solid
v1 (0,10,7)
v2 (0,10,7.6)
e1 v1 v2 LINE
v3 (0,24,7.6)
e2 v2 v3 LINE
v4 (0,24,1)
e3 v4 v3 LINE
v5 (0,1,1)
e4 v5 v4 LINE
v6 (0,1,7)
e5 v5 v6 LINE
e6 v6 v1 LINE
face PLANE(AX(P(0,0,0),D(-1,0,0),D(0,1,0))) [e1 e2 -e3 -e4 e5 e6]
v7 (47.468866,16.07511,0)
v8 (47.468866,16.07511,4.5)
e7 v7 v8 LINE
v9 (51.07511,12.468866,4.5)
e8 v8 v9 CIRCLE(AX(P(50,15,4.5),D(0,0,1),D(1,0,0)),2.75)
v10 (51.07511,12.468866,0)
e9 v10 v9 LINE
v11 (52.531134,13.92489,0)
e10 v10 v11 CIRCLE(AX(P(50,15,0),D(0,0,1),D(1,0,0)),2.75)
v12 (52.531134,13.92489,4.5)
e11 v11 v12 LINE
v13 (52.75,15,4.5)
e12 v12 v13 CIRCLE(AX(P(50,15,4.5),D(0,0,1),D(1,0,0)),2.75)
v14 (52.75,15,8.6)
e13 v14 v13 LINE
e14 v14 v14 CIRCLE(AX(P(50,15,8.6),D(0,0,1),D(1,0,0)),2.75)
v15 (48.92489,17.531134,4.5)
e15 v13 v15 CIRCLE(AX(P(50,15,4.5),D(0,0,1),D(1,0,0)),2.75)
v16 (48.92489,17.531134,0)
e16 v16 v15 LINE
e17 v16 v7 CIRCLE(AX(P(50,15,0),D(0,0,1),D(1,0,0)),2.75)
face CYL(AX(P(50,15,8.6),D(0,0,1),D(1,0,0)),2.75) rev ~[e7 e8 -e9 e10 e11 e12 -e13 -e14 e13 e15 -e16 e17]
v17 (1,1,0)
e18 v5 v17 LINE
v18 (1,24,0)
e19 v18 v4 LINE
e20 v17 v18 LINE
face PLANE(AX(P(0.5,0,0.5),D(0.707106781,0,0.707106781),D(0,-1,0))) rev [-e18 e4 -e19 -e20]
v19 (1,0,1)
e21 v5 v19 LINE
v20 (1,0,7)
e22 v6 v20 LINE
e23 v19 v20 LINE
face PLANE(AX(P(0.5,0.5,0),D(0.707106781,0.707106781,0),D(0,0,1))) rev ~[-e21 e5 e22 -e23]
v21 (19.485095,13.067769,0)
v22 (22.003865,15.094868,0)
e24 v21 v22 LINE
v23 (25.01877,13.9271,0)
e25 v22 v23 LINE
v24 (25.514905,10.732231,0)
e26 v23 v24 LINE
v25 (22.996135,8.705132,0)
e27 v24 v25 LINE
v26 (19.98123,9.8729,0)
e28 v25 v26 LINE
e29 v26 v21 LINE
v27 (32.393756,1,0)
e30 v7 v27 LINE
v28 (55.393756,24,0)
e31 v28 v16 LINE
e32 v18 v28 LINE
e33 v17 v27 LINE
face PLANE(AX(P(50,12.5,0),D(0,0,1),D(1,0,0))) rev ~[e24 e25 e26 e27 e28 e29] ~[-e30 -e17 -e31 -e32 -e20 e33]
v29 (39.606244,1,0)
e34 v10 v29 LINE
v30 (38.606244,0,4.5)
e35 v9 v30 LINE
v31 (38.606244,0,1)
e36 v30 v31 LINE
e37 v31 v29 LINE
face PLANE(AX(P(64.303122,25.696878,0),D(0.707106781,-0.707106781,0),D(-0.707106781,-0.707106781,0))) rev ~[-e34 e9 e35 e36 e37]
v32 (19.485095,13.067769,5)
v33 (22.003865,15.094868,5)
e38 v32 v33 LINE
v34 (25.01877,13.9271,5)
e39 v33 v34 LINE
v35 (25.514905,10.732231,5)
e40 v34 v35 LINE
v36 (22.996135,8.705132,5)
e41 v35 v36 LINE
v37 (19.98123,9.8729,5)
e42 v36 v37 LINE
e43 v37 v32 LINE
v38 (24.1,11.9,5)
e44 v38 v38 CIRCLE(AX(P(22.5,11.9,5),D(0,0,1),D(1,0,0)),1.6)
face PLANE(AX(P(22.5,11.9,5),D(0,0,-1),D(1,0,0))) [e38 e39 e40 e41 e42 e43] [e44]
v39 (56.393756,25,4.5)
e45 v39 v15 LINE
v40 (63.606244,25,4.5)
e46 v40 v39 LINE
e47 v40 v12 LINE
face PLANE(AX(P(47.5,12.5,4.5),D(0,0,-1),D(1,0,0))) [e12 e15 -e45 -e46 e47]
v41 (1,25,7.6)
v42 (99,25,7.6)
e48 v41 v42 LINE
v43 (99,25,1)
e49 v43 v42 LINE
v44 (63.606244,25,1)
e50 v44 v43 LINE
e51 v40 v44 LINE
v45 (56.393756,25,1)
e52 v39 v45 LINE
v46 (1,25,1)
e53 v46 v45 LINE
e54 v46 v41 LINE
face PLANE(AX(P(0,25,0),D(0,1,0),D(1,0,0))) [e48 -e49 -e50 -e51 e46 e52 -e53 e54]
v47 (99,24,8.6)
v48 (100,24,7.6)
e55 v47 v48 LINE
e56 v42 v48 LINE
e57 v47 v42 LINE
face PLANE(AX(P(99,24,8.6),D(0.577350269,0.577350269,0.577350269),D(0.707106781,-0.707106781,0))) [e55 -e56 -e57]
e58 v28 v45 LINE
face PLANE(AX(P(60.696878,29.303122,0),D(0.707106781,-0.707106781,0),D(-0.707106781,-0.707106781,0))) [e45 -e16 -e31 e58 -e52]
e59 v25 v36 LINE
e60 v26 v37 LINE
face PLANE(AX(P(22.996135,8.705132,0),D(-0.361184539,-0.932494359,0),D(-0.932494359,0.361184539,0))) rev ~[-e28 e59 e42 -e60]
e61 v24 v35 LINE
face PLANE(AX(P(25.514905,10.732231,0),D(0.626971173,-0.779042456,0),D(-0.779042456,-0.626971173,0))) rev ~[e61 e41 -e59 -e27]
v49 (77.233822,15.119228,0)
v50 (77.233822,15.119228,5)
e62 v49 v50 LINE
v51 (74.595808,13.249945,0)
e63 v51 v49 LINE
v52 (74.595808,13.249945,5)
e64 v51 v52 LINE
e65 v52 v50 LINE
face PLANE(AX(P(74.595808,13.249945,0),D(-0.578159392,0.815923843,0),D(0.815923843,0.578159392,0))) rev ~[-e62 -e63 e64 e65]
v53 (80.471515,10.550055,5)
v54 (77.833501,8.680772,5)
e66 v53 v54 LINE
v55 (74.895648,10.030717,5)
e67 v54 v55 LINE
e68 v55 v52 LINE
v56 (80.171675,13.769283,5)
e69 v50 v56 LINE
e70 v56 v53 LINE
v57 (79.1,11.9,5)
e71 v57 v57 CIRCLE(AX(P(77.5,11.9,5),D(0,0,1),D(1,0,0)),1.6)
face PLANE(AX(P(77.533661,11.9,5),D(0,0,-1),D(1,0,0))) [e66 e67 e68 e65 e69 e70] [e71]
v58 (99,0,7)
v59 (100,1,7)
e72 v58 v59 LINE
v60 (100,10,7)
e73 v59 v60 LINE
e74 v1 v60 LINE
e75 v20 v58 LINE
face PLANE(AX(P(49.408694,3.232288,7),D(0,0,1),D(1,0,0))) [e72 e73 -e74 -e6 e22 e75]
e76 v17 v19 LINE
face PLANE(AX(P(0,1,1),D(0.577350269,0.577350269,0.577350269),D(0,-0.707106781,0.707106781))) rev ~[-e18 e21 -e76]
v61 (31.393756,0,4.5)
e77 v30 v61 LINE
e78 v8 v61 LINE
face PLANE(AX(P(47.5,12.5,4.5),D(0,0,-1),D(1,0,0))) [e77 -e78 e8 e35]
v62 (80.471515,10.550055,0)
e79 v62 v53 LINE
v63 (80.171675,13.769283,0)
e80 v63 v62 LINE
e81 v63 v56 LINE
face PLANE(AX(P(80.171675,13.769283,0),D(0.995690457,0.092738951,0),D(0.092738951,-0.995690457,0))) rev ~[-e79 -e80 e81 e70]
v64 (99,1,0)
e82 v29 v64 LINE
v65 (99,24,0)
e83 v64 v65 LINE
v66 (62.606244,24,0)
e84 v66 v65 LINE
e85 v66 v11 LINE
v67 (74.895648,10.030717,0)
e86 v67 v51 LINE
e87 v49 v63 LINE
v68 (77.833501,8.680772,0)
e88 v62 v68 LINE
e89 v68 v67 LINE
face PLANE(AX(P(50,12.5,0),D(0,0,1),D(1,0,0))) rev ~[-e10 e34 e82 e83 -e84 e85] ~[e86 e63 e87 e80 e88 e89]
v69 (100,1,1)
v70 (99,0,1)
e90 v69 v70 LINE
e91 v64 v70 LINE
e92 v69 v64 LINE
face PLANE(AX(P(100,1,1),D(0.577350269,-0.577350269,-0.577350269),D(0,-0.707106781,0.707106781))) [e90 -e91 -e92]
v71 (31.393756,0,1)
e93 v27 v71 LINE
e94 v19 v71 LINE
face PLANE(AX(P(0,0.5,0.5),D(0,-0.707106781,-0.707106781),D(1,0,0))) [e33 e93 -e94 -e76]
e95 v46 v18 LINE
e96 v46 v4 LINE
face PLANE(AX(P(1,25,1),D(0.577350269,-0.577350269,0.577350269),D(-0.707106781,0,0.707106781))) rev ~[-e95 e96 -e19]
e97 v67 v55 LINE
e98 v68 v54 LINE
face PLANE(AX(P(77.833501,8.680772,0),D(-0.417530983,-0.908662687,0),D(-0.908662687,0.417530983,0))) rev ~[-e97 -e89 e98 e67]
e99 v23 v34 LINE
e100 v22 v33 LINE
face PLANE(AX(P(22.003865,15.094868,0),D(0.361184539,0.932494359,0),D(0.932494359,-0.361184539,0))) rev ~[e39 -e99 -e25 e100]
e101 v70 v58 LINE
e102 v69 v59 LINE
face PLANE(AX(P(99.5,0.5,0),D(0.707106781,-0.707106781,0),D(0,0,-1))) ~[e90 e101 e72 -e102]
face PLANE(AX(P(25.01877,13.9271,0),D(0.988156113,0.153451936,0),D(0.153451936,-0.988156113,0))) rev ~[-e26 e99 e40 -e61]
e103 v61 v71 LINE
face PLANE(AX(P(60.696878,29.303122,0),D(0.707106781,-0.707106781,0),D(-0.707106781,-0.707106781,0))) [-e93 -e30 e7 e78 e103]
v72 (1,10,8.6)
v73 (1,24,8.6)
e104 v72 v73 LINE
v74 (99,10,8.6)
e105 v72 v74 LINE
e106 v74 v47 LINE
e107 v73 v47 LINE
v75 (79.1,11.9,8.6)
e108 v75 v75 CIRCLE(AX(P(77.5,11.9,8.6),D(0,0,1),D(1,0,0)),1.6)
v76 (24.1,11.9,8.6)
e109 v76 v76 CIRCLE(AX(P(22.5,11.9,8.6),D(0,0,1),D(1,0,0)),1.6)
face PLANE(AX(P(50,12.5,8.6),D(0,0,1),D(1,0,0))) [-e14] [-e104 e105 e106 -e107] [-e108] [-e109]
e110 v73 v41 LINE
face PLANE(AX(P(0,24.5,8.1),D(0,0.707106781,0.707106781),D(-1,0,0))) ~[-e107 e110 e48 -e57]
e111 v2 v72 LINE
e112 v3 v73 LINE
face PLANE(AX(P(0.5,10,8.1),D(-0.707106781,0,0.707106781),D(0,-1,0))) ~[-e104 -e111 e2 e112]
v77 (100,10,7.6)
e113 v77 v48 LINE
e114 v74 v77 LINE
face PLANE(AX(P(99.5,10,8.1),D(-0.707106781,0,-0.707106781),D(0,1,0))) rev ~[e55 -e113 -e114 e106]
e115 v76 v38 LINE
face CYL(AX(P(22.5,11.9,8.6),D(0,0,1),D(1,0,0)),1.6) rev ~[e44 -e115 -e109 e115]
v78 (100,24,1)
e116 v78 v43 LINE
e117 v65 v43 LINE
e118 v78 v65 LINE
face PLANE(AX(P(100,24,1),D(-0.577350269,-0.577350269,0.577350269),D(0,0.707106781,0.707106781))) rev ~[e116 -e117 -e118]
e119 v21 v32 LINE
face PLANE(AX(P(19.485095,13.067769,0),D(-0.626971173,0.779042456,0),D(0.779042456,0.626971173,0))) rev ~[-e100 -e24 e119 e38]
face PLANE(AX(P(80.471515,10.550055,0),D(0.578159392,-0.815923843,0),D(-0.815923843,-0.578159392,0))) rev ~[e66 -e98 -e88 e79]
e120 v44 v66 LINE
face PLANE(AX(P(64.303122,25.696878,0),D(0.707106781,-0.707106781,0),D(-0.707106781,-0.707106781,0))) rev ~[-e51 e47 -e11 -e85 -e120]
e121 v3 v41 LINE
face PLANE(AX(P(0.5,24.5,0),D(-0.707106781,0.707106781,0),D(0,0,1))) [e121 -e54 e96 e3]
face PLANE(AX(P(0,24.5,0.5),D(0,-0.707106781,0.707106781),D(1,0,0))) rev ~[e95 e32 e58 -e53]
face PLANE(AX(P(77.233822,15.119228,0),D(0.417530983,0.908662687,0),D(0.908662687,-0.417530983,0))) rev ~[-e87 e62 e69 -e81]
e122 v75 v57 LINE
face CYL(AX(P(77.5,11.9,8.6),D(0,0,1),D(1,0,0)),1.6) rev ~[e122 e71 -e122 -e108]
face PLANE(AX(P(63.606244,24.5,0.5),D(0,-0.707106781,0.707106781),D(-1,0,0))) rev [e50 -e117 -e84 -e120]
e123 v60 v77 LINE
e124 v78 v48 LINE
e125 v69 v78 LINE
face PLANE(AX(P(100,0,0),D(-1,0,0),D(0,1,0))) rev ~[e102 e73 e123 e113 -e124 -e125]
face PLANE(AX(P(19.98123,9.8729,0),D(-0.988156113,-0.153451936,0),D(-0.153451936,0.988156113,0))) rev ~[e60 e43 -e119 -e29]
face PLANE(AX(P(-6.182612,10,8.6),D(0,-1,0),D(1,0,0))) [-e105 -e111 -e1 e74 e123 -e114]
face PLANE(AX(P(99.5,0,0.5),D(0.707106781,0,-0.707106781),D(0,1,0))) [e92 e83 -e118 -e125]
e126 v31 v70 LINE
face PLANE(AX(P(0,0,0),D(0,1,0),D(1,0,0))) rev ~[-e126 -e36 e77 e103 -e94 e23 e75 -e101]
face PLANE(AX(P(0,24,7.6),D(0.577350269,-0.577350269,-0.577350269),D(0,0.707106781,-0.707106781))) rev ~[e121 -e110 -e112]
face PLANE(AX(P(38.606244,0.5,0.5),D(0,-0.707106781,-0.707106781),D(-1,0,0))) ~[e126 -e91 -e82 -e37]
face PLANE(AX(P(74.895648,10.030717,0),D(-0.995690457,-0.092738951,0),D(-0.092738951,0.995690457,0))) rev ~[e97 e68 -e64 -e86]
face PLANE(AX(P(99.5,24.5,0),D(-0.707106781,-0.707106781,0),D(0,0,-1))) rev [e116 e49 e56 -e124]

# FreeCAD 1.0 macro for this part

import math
import FreeCAD as App
import Part
import Sketcher
Q = App.Units.Quantity


def edges_at(feature, points):
    """Names of the edges that pass closest to the given points."""
    edges = feature.Shape.Edges
    near = lambda p: min(range(len(edges)), key=lambda i: edges[i].distToShape(Part.Vertex(*p))[0])
    return sorted({f"Edge{near(p) + 1}" for p in points})


def add_polygon(sketch, points):
    """Adds a closed chain of lines whose ends are joined by coincident constraints."""
    first, n = sketch.GeometryCount, len(points)
    for a, b in zip(points, points[1:] + points[:1]):
        sketch.addGeometry(Part.LineSegment(App.Vector(*a, 0), App.Vector(*b, 0)), False)
    for i in range(n):
        sketch.addConstraint(Sketcher.Constraint("Coincident", first + i, 2, first + (i + 1) % n, 1))

doc = App.newDocument("Part")
params = doc.addObject("Spreadsheet::Sheet", "Params")
for row, (alias, value) in enumerate([
    ("sketch1_width", "100 mm"),
    ("sketch1_height", "25 mm"),
    ("pad1_length", "8.6 mm"),
    ("pocket1_length", "1.6 mm"),
    ("sketch3_diameter", "5.5 mm"),
    ("sketch4_radius", "2.55 mm"),
    ("pocket3_length", "4.5 mm"),
    ("sketch5_diameter", "3.2 mm"),
    ("pocket5_length", "5 mm"),
    ("chamfer_size", "1 mm"),
], start=1):
    params.set(f"A{row}", alias)
    params.set(f"B{row}", "=" + value)
    params.setAlias(f"B{row}", alias)

body = doc.addObject("PartDesign::Body", "Body")

# Sketch on XY plane
sketch1 = doc.addObject("Sketcher::SketchObject", "Sketch")
body.addObject(sketch1)
sketch1.AttachmentSupport = (doc.XY_Plane, [""])
sketch1.MapMode = "FlatFace"
add_polygon(sketch1, [(0, 25), (0, 0), (100, 0), (100, 25)])  # lines 0-3
sketch1.addConstraint([
    Sketcher.Constraint("Vertical", 0),
    Sketcher.Constraint("Horizontal", 1),
    Sketcher.Constraint("Vertical", 2),
    Sketcher.Constraint("Horizontal", 3),
    Sketcher.Constraint("Coincident", 0, 2, -1, 1),
    Sketcher.Constraint("DistanceX", 1, 1, 1, 2, Q("100 mm")),
    Sketcher.Constraint("DistanceY", 0, 2, 0, 1, Q("25 mm")),
])
sketch1.setExpression("Constraints[9]", "Params.sketch1_width")
sketch1.setExpression("Constraints[10]", "Params.sketch1_height")
pad1 = doc.addObject("PartDesign::Pad", "Pad")
body.addObject(pad1)
pad1.Profile = sketch1
pad1.setExpression("Length", "Params.pad1_length")

# Sketch on XY plane
sketch2 = doc.addObject("Sketcher::SketchObject", "Sketch001")
body.addObject(sketch2)
sketch2.AttachmentSupport = (doc.XY_Plane, [""])
sketch2.MapMode = "FlatFace"
sketch2.AttachmentOffset = App.Placement(App.Vector(0, 0, 8.6), App.Rotation())
add_polygon(sketch2, [(-6, 10), (-6, -4), (105, -4), (105, 10)])  # lines 0-3
sketch2.addConstraint([
    Sketcher.Constraint("Vertical", 0),
    Sketcher.Constraint("Horizontal", 1),
    Sketcher.Constraint("Vertical", 2),
    Sketcher.Constraint("Horizontal", 3),
    Sketcher.Constraint("DistanceX", -1, 1, 1, 2, Q("105 mm")),
    Sketcher.Constraint("DistanceY", -1, 1, 2, 2, Q("10 mm")),
    Sketcher.Constraint("DistanceX", 1, 1, 1, 2, Q("111.182612 mm")),
    Sketcher.Constraint("DistanceY", 0, 2, 0, 1, Q("13.535424 mm")),
])
pocket1 = doc.addObject("PartDesign::Pocket", "Pocket")
body.addObject(pocket1)
pocket1.Profile = sketch2
pocket1.setExpression("Length", "Params.pocket1_length")

# Sketch on XY plane
sketch3 = doc.addObject("Sketcher::SketchObject", "Sketch002")
body.addObject(sketch3)
sketch3.AttachmentSupport = (doc.XY_Plane, [""])
sketch3.MapMode = "FlatFace"
sketch3.AttachmentOffset = App.Placement(App.Vector(0, 0, 8.6), App.Rotation())
sketch3.addGeometry(Part.Circle(App.Vector(50, 15, 0), App.Vector(0, 0, 1), 2.8), False)
sketch3.addConstraint([
    Sketcher.Constraint("Diameter", 0, Q("5.5 mm")),
    Sketcher.Constraint("DistanceX", -1, 1, 0, 3, Q("50 mm")),
    Sketcher.Constraint("DistanceY", -1, 1, 0, 3, Q("15 mm")),
])
sketch3.setExpression("Constraints[0]", "Params.sketch3_diameter")
pocket2 = doc.addObject("PartDesign::Pocket", "Pocket001")
body.addObject(pocket2)
pocket2.Profile = sketch3
pocket2.Type = "ThroughAll"

# Sketch on XY plane
sketch4 = doc.addObject("Sketcher::SketchObject", "Sketch003")
body.addObject(sketch4)
sketch4.AttachmentSupport = (doc.XY_Plane, [""])
sketch4.MapMode = "FlatFace"
sketch4.addGeometry([
    Part.ArcOfCircle(Part.Circle(App.Vector(62.5, 27.5, 0), App.Vector(0, 0, 1), 2.5), math.radians(-45), math.radians(135)),
    Part.LineSegment(App.Vector(64.3, 25.7, 0), App.Vector(34.3, -4.3, 0)),
    Part.ArcOfCircle(Part.Circle(App.Vector(32.5, -2.5, 0), App.Vector(0, 0, 1), 2.5), math.radians(135), math.radians(315)),
    Part.LineSegment(App.Vector(30.7, -0.7, 0), App.Vector(60.7, 29.3, 0)),
], False)
sketch4.addConstraint([
    Sketcher.Constraint("Tangent", 0, 1, 1, 1),
    Sketcher.Constraint("Tangent", 1, 2, 2, 2),
    Sketcher.Constraint("Tangent", 2, 1, 3, 1),
    Sketcher.Constraint("Tangent", 3, 2, 0, 2),
    Sketcher.Constraint("Equal", 0, 2),
    Sketcher.Constraint("Angle", 1, Q("-135 deg")),
    Sketcher.Constraint("Radius", 0, Q("2.55 mm")),
    Sketcher.Constraint("DistanceX", 2, 3, 0, 3, Q("30 mm")),
    Sketcher.Constraint("DistanceX", -1, 1, 0, 3, Q("62.5 mm")),
    Sketcher.Constraint("DistanceY", -1, 1, 0, 3, Q("27.5 mm")),
])
sketch4.setExpression("Constraints[6]", "Params.sketch4_radius")
pocket3 = doc.addObject("PartDesign::Pocket", "Pocket002")
body.addObject(pocket3)
pocket3.Profile = sketch4
pocket3.setExpression("Length", "Params.pocket3_length")
pocket3.Reversed = True

# Sketch on XY plane
sketch5 = doc.addObject("Sketcher::SketchObject", "Sketch004")
body.addObject(sketch5)
sketch5.AttachmentSupport = (doc.XY_Plane, [""])
sketch5.MapMode = "FlatFace"
sketch5.AttachmentOffset = App.Placement(App.Vector(0, 0, 8.6), App.Rotation())
sketch5.addGeometry([
    Part.Circle(App.Vector(22.5, 11.9, 0), App.Vector(0, 0, 1), 1.6),
    Part.Circle(App.Vector(77.5, 11.9, 0), App.Vector(0, 0, 1), 1.6),
], False)
sketch5.addConstraint([
    Sketcher.Constraint("Equal", 0, 1),
    Sketcher.Constraint("Horizontal", 0, 3, 1, 3),
    Sketcher.Constraint("Diameter", 0, Q("3.2 mm")),
    Sketcher.Constraint("DistanceX", 0, 3, 1, 3, Q("55 mm")),
    Sketcher.Constraint("DistanceX", -1, 1, 0, 3, Q("22.5 mm")),
    Sketcher.Constraint("DistanceY", -1, 1, 0, 3, Q("11.9 mm")),
])
sketch5.setExpression("Constraints[2]", "Params.sketch5_diameter")
pocket4 = doc.addObject("PartDesign::Pocket", "Pocket003")
body.addObject(pocket4)
pocket4.Profile = sketch5
pocket4.Type = "ThroughAll"

# Sketch on XY plane
sketch6 = doc.addObject("Sketcher::SketchObject", "Sketch005")
body.addObject(sketch6)
sketch6.AttachmentSupport = (doc.XY_Plane, [""])
sketch6.MapMode = "FlatFace"
add_polygon(sketch6, [(25.5, 10.7), (23, 8.7), (20, 9.9), (19.5, 13.1), (22, 15.1), (25, 13.9)])  # lines 0-5
add_polygon(sketch6, [(80.2, 13.8), (80.5, 10.6), (77.8, 8.7), (74.9, 10), (74.6, 13.2), (77.2, 15.1)])  # lines 6-11
sketch6.addConstraint([
    Sketcher.Constraint("Parallel", 0, 3),
    Sketcher.Constraint("Parallel", 1, 4),
    Sketcher.Constraint("Parallel", 2, 5),
    Sketcher.Constraint("Parallel", 6, 9),
    Sketcher.Constraint("Parallel", 7, 10),
    Sketcher.Constraint("Parallel", 8, 11),
    Sketcher.Constraint("Equal", 0, 1),
    Sketcher.Constraint("Equal", 1, 2),
    Sketcher.Constraint("Equal", 2, 3),
    Sketcher.Constraint("Equal", 5, 6),
    Sketcher.Constraint("Equal", 6, 7),
    Sketcher.Constraint("Equal", 7, 8),
    Sketcher.Constraint("Equal", 8, 9),
    Sketcher.Constraint("DistanceY", -1, 1, 1, 2, Q("9.8729 mm")),
    Sketcher.Constraint("DistanceY", -1, 1, 4, 2, Q("13.9271 mm")),
    Sketcher.Constraint("DistanceX", -1, 1, 7, 2, Q("77.833501 mm")),
    Sketcher.Constraint("DistanceY", 2, 2, 3, 2, Q("2.027099 mm")),
    Sketcher.Constraint("Distance", 0, Q("3.233161 mm")),
    Sketcher.Constraint("DistanceX", -1, 1, 1, 2, Q("19.98123 mm")),
    Sketcher.Constraint("DistanceY", -1, 1, 2, 2, Q("13.067769 mm")),
    Sketcher.Constraint("DistanceY", -1, 1, 7, 2, Q("8.680772 mm")),
    Sketcher.Constraint("DistanceX", -1, 1, 9, 2, Q("74.595808 mm")),
    Sketcher.Constraint("DistanceX", 5, 2, 6, 2, Q("54.95661 mm")),
    Sketcher.Constraint("DistanceY", 8, 2, 6, 2, Q("0.519338 mm")),
])
pocket5 = doc.addObject("PartDesign::Pocket", "Pocket004")
body.addObject(pocket5)
pocket5.Profile = sketch6
pocket5.setExpression("Length", "Params.pocket5_length")
pocket5.Reversed = True
doc.recompute()

chamfer = doc.addObject("PartDesign::Chamfer", "Chamfer")
body.addObject(chamfer)
chamfer.Base = (pocket5, edges_at(pocket5, [
    (15.697, 0, 0),
    (0, 12.5, 0),
    (28.197, 25, 0),
    (81.803, 25, 0),
    (69.303, 0, 0),
    (100, 12.5, 0),
    (100, 25, 4.3),
    (50, 25, 8.6),
    (100, 17.5, 8.6),
    (100, 0, 3.5),
    (0, 0, 3.5),
    (0, 17.5, 8.6),
    (0, 25, 4.3),
]))
chamfer.setExpression("Size", "Params.chamfer_size")

doc.recompute()
